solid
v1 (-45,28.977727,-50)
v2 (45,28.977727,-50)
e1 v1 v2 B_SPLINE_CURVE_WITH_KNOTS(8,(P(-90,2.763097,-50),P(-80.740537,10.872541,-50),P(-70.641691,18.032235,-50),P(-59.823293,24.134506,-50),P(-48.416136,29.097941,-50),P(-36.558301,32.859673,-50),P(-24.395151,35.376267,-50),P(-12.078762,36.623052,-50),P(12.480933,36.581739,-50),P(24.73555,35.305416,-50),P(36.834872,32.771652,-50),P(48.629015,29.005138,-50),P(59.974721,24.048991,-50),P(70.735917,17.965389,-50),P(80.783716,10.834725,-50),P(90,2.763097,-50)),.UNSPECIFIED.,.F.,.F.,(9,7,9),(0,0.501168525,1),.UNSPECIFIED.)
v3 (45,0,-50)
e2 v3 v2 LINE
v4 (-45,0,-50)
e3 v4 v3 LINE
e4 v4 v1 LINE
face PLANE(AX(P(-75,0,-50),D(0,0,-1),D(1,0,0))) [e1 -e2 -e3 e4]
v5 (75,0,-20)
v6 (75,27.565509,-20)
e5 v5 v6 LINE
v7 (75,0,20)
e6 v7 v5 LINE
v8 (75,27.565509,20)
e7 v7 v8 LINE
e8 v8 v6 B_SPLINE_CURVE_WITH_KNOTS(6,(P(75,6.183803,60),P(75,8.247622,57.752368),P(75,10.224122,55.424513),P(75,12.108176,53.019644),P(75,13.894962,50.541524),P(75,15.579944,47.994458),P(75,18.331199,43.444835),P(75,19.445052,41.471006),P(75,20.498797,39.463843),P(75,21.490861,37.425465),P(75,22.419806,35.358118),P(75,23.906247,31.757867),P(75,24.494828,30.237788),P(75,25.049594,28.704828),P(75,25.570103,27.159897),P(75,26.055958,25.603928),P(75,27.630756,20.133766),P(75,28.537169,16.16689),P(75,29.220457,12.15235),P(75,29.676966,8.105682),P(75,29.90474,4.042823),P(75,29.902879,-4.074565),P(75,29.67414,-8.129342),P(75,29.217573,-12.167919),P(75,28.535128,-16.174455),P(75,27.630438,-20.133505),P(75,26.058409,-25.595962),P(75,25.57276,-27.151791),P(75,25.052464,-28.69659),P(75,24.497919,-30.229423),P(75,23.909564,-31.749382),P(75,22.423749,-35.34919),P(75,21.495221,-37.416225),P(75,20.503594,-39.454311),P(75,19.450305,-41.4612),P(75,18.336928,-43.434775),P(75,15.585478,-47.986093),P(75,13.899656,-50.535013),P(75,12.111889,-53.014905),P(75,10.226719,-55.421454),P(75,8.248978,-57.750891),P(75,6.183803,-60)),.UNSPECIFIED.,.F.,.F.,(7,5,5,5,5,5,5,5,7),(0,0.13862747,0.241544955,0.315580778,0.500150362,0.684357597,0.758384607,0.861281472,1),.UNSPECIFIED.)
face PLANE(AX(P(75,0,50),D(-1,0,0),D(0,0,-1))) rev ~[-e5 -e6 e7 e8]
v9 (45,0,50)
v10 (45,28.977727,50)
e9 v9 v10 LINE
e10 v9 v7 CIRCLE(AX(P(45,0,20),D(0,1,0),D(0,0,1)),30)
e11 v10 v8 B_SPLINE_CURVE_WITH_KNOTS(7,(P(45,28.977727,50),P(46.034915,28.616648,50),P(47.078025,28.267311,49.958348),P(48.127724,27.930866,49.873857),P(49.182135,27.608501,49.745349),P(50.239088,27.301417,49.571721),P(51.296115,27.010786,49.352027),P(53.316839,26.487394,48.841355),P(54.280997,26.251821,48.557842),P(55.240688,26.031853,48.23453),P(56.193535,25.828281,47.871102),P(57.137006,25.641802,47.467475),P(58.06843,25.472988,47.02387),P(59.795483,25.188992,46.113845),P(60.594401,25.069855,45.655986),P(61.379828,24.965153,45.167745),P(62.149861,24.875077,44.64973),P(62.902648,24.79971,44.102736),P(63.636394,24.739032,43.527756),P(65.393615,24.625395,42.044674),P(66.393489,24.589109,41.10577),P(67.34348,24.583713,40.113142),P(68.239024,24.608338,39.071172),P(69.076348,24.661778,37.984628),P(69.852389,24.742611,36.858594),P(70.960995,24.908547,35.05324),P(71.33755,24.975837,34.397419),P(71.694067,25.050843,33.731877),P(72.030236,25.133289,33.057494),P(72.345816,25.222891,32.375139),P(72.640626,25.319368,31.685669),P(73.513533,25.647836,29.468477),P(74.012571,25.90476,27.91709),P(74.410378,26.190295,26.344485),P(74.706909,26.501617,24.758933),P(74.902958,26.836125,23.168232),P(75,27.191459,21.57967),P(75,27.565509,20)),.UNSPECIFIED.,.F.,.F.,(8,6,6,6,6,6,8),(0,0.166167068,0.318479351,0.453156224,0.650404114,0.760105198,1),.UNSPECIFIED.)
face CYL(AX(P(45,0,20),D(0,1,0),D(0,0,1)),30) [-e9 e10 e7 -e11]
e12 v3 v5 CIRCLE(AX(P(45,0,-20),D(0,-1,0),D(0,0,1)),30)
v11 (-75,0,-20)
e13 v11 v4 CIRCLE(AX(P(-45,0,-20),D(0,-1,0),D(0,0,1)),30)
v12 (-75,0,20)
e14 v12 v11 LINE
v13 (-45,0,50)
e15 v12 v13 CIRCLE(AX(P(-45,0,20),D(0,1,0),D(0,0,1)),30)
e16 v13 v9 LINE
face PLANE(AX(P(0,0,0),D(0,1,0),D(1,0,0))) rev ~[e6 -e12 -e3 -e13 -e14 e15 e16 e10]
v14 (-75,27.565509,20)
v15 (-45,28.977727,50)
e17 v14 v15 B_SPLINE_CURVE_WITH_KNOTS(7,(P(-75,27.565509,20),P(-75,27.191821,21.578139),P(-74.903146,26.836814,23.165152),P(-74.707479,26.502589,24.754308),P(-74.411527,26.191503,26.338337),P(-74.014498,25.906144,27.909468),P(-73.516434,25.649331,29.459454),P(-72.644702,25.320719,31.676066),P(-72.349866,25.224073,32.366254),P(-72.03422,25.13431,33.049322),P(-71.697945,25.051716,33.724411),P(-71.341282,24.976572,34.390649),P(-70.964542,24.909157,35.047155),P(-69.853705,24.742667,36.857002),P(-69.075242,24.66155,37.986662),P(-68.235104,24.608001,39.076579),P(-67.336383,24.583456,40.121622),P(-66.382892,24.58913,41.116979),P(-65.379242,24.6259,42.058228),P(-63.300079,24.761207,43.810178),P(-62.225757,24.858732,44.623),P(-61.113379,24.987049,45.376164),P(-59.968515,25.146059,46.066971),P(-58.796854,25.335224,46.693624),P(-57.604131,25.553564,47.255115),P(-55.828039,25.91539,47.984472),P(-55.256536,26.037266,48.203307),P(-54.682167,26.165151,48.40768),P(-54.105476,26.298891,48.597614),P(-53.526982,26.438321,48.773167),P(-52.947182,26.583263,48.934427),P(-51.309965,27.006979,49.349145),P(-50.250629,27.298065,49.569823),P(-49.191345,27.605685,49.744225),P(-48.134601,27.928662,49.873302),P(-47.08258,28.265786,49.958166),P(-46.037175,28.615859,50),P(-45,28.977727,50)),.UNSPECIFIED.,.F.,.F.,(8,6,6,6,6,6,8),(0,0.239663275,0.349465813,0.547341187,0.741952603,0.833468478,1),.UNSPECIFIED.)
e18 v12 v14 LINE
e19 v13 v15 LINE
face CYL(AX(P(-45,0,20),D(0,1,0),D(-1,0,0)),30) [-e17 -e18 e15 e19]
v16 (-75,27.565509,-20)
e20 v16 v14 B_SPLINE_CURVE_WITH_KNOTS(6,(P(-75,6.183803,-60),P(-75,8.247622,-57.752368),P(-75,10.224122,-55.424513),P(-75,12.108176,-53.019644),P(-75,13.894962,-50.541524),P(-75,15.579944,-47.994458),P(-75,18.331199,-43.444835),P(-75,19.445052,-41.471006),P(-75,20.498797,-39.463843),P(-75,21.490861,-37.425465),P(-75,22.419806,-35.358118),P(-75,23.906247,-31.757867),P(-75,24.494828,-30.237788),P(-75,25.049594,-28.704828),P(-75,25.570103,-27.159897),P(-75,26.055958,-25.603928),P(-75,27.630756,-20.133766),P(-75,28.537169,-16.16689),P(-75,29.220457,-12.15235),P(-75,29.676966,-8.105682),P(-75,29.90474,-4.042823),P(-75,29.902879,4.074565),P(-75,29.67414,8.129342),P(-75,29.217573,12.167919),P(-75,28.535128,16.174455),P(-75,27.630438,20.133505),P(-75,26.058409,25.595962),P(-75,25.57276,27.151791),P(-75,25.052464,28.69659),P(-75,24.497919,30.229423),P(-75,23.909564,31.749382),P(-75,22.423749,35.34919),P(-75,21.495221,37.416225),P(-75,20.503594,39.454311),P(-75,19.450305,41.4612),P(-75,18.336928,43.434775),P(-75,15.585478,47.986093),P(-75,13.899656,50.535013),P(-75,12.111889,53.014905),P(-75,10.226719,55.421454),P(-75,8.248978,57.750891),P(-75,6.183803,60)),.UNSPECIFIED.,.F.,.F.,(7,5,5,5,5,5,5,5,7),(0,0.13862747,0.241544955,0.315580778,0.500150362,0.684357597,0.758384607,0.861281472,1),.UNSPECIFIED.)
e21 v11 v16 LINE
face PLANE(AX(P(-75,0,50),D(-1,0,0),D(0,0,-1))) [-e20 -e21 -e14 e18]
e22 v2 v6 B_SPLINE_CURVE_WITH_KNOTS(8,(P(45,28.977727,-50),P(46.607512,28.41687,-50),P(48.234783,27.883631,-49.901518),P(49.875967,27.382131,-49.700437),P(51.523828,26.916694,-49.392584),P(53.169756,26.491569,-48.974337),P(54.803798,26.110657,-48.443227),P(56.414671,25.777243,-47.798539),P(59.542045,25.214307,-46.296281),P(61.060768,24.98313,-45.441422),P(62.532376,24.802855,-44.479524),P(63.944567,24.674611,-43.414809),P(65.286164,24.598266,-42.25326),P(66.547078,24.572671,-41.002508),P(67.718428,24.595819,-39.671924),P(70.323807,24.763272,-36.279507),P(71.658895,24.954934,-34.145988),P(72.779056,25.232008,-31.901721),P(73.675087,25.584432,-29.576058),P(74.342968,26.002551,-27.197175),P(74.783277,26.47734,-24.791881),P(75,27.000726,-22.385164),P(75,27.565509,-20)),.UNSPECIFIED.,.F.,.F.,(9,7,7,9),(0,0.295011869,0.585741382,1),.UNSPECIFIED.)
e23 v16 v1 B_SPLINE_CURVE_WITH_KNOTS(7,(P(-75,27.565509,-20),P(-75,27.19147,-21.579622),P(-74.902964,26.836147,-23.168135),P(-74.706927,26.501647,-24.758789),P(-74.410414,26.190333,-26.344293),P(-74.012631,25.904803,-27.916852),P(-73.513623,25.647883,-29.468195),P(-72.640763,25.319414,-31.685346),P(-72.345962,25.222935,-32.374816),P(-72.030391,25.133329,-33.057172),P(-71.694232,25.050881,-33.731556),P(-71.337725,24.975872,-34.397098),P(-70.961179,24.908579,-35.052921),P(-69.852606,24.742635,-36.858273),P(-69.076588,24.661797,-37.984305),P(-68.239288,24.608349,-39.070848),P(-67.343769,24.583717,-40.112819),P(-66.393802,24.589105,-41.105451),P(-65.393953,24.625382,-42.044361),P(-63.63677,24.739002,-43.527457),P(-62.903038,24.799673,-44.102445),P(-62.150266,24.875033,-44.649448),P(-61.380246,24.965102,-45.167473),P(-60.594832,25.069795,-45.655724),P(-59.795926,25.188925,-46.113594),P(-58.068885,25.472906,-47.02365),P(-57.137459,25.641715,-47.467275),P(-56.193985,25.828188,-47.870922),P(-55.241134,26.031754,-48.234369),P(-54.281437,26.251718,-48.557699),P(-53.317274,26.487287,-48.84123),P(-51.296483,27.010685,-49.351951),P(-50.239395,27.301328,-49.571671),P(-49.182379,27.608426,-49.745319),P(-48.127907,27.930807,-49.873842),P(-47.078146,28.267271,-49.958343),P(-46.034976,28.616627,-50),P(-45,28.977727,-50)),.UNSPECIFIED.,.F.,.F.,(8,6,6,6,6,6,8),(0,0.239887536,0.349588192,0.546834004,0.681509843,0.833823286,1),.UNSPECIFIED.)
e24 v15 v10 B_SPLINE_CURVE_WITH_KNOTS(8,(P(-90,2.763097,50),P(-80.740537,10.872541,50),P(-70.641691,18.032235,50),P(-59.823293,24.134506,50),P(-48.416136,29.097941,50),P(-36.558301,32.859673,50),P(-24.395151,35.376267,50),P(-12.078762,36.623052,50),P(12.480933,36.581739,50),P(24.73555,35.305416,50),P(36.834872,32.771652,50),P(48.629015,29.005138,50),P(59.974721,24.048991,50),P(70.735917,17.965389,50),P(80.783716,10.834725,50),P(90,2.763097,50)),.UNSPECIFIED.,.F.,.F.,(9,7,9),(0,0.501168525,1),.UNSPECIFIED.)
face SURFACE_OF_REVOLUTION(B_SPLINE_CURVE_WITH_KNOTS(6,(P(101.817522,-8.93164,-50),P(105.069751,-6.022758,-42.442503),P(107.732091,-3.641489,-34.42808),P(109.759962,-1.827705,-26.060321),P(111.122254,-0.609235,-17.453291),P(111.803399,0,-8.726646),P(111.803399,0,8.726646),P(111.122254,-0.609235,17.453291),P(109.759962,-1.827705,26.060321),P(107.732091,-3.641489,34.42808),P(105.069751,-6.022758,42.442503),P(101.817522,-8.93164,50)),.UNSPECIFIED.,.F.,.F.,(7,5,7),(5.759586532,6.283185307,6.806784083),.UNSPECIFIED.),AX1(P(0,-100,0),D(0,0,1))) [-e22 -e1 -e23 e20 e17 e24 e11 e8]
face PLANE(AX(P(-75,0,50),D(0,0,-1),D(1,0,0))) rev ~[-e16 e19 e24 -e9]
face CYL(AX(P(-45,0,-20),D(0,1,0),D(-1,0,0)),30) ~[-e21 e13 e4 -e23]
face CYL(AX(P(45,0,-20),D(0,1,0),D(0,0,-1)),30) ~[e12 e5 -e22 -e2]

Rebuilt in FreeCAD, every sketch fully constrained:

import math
import FreeCAD as App
import Part
import Sketcher
Q = App.Units.Quantity


def edges_at(feature, points):
    """Names of the edges that pass closest to the given points."""
    edges = feature.Shape.Edges
    near = lambda p: min(range(len(edges)), key=lambda i: edges[i].distToShape(Part.Vertex(*p))[0])
    return sorted({f"Edge{near(p) + 1}" for p in points})


def add_polygon(sketch, points):
    """Adds a closed chain of lines whose ends are joined by coincident constraints."""
    first, n = sketch.GeometryCount, len(points)
    for a, b in zip(points, points[1:] + points[:1]):
        sketch.addGeometry(Part.LineSegment(App.Vector(*a, 0), App.Vector(*b, 0)), False)
    for i in range(n):
        sketch.addConstraint(Sketcher.Constraint("Coincident", first + i, 2, first + (i + 1) % n, 1))

doc = App.newDocument("Part")
params = doc.addObject("Spreadsheet::Sheet", "Params")
for row, (alias, value) in enumerate([
    ("sketch1_width", "150 mm"),
    ("sketch1_height", "100 mm"),
    ("pad1_length", "50 mm"),
    ("sketch2_radius", "100 mm"),
    ("sketch2_width", "100 mm"),
    ("sketch3_radius", "150 mm"),
    ("fillet_radius", "30 mm"),
], start=1):
    params.set(f"A{row}", alias)
    params.set(f"B{row}", "=" + value)
    params.setAlias(f"B{row}", alias)

body = doc.addObject("PartDesign::Body", "Body")

# Sketch on XZ plane
sketch1 = doc.addObject("Sketcher::SketchObject", "Sketch")
body.addObject(sketch1)
sketch1.AttachmentSupport = (doc.XZ_Plane, [""])
sketch1.MapMode = "FlatFace"
add_polygon(sketch1, [(-75, -50), (-75, 50), (75, 50), (75, -50)])  # lines 0-3
sketch1.addConstraint([
    Sketcher.Constraint("Vertical", 0),
    Sketcher.Constraint("Horizontal", 1),
    Sketcher.Constraint("Vertical", 2),
    Sketcher.Constraint("Horizontal", 3),
    Sketcher.Constraint("Symmetric", 0, 2, 2, 2, -1, 1),
    Sketcher.Constraint("DistanceX", 1, 1, 1, 2, Q("150 mm")),
    Sketcher.Constraint("DistanceY", 0, 1, 0, 2, Q("100 mm")),
])
sketch1.setExpression("Constraints[9]", "Params.sketch1_width")
sketch1.setExpression("Constraints[10]", "Params.sketch1_height")
pad1 = doc.addObject("PartDesign::Pad", "Pad")
body.addObject(pad1)
pad1.Profile = sketch1
pad1.setExpression("Length", "Params.pad1_length")
pad1.Reversed = True

# Sketch on YZ plane
sketch2 = doc.addObject("Sketcher::SketchObject", "Sketch001")
body.addObject(sketch2)
sketch2.AttachmentSupport = (doc.YZ_Plane, [""])
sketch2.MapMode = "FlatFace"
sketch2.addGeometry([
    Part.LineSegment(App.Vector(100, 86.60254, 0), App.Vector(0, 86.60254, 0)),
    Part.ArcOfCircle(Part.Circle(App.Vector(-50, 0, 0), App.Vector(0, 0, 1), 100), math.radians(-60), math.radians(60)),
    Part.LineSegment(App.Vector(0, -86.60254, 0), App.Vector(100, -86.60254, 0)),
    Part.LineSegment(App.Vector(100, -86.60254, 0), App.Vector(100, 86.60254, 0)),
], False)
sketch2.addConstraint([
    Sketcher.Constraint("Coincident", 0, 2, 1, 2),
    Sketcher.Constraint("Coincident", 1, 1, 2, 1),
    Sketcher.Constraint("Coincident", 2, 2, 3, 1),
    Sketcher.Constraint("Coincident", 3, 2, 0, 1),
    Sketcher.Constraint("Horizontal", 0),
    Sketcher.Constraint("Horizontal", 2),
    Sketcher.Constraint("Vertical", 3),
    Sketcher.Constraint("Symmetric", 0, 2, 1, 1, -1, 1),
    Sketcher.Constraint("PointOnObject", 1, 3, -1),
    Sketcher.Constraint("Radius", 1, Q("100 mm")),
    Sketcher.Constraint("DistanceX", 0, 2, 0, 1, Q("100 mm")),
    Sketcher.Constraint("DistanceX", 1, 3, -1, 1, Q("50 mm")),
])
sketch2.setExpression("Constraints[9]", "Params.sketch2_radius")
sketch2.setExpression("Constraints[10]", "Params.sketch2_width")

# Sketch on XY plane
sketch3 = doc.addObject("Sketcher::SketchObject", "Sketch002")
body.addObject(sketch3)
sketch3.AttachmentSupport = (doc.XY_Plane, [""])
sketch3.MapMode = "FlatFace"
sketch3.addGeometry(Part.ArcOfCircle(Part.Circle(App.Vector(0, -100, 0), App.Vector(0, 0, 1), 150), math.radians(41.810315), math.radians(138.189685)), False)
sketch3.addConstraint([
    Sketcher.Constraint("Symmetric", 0, 1, 0, 2, -1, 1),
    Sketcher.Constraint("PointOnObject", 0, 3, -2),
    Sketcher.Constraint("Radius", 0, Q("150 mm")),
    Sketcher.Constraint("DistanceY", 0, 3, -1, 1, Q("100 mm")),
])
sketch3.setExpression("Constraints[2]", "Params.sketch3_radius")
doc.recompute()

subtractivepipe = doc.addObject("PartDesign::SubtractivePipe", "SubtractivePipe")
body.addObject(subtractivepipe)
subtractivepipe.Profile = sketch2
subtractivepipe.Spine = (sketch3, ["Edge1"])
doc.recompute()

fillet = doc.addObject("PartDesign::Fillet", "Fillet")
body.addObject(fillet)
fillet.Base = (subtractivepipe, edges_at(subtractivepipe, [
    (-75, 7.086, 50),
    (-75, 7.086, -50),
    (75, 7.086, -50),
    (75, 7.086, 50),
]))
fillet.setExpression("Radius", "Params.fillet_radius")

doc.recompute()
